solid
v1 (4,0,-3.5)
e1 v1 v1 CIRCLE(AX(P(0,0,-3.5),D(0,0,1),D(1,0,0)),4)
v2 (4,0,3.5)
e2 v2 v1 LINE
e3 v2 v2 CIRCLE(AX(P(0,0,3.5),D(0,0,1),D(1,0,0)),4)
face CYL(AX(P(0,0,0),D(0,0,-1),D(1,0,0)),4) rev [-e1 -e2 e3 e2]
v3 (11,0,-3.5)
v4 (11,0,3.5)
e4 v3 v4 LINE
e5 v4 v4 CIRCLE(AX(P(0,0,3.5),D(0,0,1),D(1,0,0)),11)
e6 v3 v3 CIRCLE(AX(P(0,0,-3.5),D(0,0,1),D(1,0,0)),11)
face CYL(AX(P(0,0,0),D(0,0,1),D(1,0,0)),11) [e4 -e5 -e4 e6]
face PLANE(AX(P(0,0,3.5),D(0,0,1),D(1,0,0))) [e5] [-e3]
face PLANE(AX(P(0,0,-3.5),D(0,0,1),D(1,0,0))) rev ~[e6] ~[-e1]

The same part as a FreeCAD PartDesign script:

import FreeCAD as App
import Part
import Sketcher
from FreeCAD import Vector
Q = App.Units.Quantity

doc = App.newDocument("Part")
body = doc.addObject("PartDesign::Body", "Body")

sketch1 = body.newObject("Sketcher::SketchObject", "Sketch")
sketch1.AttachmentSupport = (doc.getObject("XY_Plane"), [""])
sketch1.MapMode = "FlatFace"
sketch1.addGeometry(Part.Circle(Vector(0, 0, 0), Vector(0, 0, 1), 11), False)
sketch1.addGeometry(Part.Circle(Vector(0, 0, 0), Vector(0, 0, 1), 4), False)
sketch1.addConstraint(Sketcher.Constraint("Coincident", 0, 3, -1, 1))
sketch1.addConstraint(Sketcher.Constraint("Coincident", 1, 3, -1, 1))
sketch1.addConstraint(Sketcher.Constraint("Diameter", 0, Q("22 mm")))
sketch1.addConstraint(Sketcher.Constraint("Diameter", 1, Q("8 mm")))
pad1 = body.newObject("PartDesign::Pad", "Pad")
pad1.Profile = sketch1
pad1.Length = 7
pad1.Midplane = True

doc.recompute()
